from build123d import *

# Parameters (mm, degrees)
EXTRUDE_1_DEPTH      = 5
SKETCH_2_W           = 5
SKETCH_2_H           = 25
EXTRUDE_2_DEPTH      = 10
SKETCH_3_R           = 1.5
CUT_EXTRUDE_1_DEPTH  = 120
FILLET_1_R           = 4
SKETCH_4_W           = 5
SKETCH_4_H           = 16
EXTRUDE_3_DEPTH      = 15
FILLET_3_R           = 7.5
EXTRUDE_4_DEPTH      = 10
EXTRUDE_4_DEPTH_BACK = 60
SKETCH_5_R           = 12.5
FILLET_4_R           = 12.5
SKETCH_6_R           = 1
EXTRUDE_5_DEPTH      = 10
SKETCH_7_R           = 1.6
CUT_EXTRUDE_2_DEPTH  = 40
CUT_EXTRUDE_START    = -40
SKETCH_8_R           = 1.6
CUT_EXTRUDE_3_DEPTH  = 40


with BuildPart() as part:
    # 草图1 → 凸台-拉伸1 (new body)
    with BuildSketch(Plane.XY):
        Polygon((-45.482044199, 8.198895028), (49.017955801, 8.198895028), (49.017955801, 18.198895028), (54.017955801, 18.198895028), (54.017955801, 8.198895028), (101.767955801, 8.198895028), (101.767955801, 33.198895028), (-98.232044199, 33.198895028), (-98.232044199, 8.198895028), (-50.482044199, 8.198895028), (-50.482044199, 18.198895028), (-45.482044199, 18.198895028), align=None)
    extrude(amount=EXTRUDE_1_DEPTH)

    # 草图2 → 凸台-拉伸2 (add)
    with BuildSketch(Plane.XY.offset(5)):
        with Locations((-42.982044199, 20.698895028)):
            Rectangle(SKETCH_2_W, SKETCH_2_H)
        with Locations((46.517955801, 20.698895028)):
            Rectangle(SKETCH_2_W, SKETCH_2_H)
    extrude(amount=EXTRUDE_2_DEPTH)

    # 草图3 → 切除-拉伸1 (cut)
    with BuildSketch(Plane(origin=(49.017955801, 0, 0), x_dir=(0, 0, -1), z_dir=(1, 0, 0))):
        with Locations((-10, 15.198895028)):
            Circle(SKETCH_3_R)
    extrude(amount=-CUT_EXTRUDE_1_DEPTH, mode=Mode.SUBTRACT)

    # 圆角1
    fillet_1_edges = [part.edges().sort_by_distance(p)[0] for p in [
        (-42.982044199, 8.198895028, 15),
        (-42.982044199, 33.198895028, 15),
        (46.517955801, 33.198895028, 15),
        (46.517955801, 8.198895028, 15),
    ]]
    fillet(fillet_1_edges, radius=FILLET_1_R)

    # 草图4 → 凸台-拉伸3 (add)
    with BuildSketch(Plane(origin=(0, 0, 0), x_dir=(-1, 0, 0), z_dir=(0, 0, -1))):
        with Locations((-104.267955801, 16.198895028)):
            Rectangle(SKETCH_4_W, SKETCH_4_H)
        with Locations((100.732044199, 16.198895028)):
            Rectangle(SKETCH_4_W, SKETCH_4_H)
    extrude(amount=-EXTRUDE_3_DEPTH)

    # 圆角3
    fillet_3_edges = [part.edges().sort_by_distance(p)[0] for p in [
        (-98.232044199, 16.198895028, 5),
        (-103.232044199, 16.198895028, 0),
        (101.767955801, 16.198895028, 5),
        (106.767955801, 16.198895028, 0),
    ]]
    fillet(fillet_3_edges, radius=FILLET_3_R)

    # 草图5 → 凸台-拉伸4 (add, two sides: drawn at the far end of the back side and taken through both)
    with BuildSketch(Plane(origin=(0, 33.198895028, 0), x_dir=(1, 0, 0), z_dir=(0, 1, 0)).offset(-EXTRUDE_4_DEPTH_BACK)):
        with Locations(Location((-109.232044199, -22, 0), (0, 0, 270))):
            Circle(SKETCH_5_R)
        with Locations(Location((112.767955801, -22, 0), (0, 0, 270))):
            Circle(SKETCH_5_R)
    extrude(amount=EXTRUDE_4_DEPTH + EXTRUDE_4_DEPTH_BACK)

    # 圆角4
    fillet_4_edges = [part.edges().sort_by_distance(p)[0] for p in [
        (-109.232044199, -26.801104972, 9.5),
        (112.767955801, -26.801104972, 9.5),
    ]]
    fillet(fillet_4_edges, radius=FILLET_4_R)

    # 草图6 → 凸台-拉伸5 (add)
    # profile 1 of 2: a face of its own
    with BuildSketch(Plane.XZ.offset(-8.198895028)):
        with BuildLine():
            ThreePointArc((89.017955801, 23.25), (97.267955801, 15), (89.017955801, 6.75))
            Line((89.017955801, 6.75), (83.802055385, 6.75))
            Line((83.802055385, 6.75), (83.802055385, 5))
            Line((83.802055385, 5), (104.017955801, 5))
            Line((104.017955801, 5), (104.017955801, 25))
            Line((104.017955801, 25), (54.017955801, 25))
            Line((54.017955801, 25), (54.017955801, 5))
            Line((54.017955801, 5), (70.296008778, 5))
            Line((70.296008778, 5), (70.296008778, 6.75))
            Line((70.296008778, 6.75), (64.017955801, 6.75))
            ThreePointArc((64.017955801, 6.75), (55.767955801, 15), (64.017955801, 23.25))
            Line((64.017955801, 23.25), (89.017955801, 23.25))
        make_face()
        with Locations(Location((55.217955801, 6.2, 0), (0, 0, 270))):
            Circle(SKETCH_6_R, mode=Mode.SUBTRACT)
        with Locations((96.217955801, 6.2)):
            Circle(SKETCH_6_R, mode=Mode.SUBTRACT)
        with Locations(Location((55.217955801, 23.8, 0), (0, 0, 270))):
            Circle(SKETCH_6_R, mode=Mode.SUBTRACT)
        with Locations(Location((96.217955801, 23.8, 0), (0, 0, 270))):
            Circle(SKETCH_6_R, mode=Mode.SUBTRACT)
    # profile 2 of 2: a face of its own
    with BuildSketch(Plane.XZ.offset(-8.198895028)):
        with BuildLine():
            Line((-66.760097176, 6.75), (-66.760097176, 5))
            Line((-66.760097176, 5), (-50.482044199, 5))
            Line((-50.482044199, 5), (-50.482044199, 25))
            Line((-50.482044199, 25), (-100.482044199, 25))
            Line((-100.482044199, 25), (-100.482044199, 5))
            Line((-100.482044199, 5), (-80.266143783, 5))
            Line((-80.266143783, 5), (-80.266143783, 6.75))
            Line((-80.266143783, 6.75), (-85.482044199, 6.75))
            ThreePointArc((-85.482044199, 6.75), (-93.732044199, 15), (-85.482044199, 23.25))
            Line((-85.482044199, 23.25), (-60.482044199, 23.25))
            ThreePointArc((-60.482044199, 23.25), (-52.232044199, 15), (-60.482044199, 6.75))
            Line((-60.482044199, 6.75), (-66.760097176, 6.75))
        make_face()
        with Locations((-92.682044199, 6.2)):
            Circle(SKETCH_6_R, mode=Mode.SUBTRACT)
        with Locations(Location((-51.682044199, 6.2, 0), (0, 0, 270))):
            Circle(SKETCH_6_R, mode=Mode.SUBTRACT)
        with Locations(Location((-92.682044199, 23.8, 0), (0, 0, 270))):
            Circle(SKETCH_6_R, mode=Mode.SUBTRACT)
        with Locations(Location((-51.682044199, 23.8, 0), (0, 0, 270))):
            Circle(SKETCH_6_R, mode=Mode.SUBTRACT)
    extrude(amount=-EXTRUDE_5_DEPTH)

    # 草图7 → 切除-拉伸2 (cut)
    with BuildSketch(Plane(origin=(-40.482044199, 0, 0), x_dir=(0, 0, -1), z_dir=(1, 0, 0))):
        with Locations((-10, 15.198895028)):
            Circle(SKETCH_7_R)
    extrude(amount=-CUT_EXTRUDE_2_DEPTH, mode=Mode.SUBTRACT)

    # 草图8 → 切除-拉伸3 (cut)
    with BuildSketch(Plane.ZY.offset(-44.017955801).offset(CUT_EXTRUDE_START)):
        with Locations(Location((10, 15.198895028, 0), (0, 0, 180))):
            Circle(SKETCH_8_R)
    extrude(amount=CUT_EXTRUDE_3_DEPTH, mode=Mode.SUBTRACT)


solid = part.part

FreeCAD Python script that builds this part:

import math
import FreeCAD as App
import Part
import Sketcher

V = App.Vector
Q = App.Units.Quantity


def edges_at(feature, points):
    """Names of the edges that pass closest to the given points."""
    edges = feature.Shape.Edges
    near = lambda p: min(range(len(edges)), key=lambda i: edges[i].distToShape(Part.Vertex(*p))[0])
    return sorted({f"Edge{near(p) + 1}" for p in points})


def add_polygon(sketch, points):
    """Adds a closed chain of lines whose ends are joined by coincident constraints."""
    first, n = sketch.GeometryCount, len(points)
    for a, b in zip(points, points[1:] + points[:1]):
        sketch.addGeometry(Part.LineSegment(App.Vector(*a, 0), App.Vector(*b, 0)), False)
    for i in range(n):
        sketch.addConstraint(Sketcher.Constraint("Coincident", first + i, 2, first + (i + 1) % n, 1))

doc = App.newDocument("Part")
body = doc.addObject("PartDesign::Body", "Body")

sketch1 = doc.addObject("Sketcher::SketchObject", "Sketch")
body.addObject(sketch1)
sketch1.AttachmentSupport = (doc.XY_Plane, [""])
sketch1.MapMode = "FlatFace"
add_polygon(sketch1, [(-45.482044, 8.198895), (49.017956, 8.198895), (49.017956, 18.198895), (54.017956, 18.198895), (54.017956, 8.198895), (101.767956, 8.198895), (101.767956, 33.198895), (-98.232044, 33.198895), (-98.232044, 8.198895), (-50.482044, 8.198895), (-50.482044, 18.198895), (-45.482044, 18.198895)])
sketch1.addConstraint([
    Sketcher.Constraint("Horizontal", 0),
    Sketcher.Constraint("Vertical", 1),
    Sketcher.Constraint("Horizontal", 2),
    Sketcher.Constraint("Vertical", 3),
    Sketcher.Constraint("Horizontal", 4),
    Sketcher.Constraint("Vertical", 5),
    Sketcher.Constraint("Horizontal", 6),
    Sketcher.Constraint("Vertical", 7),
    Sketcher.Constraint("Horizontal", 8),
    Sketcher.Constraint("Vertical", 9),
    Sketcher.Constraint("Horizontal", 10),
    Sketcher.Constraint("Vertical", 11),
    Sketcher.Constraint("Horizontal", 0, 2, 3, 2),
    Sketcher.Constraint("Horizontal", 4, 2, 7, 2),
    Sketcher.Constraint("Horizontal", 2, 2, 9, 2),
    Sketcher.Constraint("Equal", 4, 8),
    Sketcher.Constraint("Equal", 2, 10),
    Sketcher.Constraint("DistanceX", 2, 1, 2, 2, Q("5 mm")),
    Sketcher.Constraint("DistanceX", 6, 2, 6, 1, Q("200 mm")),
    Sketcher.Constraint("DistanceY", 1, 1, 1, 2, Q("10 mm")),
    Sketcher.Constraint("DistanceY", 5, 1, 5, 2, Q("25 mm")),
    Sketcher.Constraint("DistanceX", 0, 1, 0, 2, Q("94.5 mm")),
    Sketcher.Constraint("DistanceX", -1, 1, 0, 2, Q("49.017956 mm")),
    Sketcher.Constraint("DistanceY", -1, 1, 0, 2, Q("8.198895 mm")),
])
pad1 = doc.addObject("PartDesign::Pad", "Pad")
body.addObject(pad1)
pad1.Profile = sketch1
pad1.Length = 5

sketch2 = doc.addObject("Sketcher::SketchObject", "Sketch001")
body.addObject(sketch2)
sketch2.AttachmentSupport = (doc.XY_Plane, [""])
sketch2.MapMode = "FlatFace"
sketch2.AttachmentOffset = App.Placement(V(0, 0, 5), App.Rotation())
add_polygon(sketch2, [(-45.482044, 33.198895), (-45.482044, 8.198895), (-40.482044, 8.198895), (-40.482044, 33.198895)])
add_polygon(sketch2, [(44.017956, 33.198895), (44.017956, 8.198895), (49.017956, 8.198895), (49.017956, 33.198895)])
sketch2.addConstraint([
    Sketcher.Constraint("Vertical", 0),
    Sketcher.Constraint("Horizontal", 1),
    Sketcher.Constraint("Vertical", 2),
    Sketcher.Constraint("Horizontal", 3),
    Sketcher.Constraint("Vertical", 4),
    Sketcher.Constraint("Horizontal", 5),
    Sketcher.Constraint("Vertical", 6),
    Sketcher.Constraint("Horizontal", 7),
    Sketcher.Constraint("Horizontal", 1, 2, 4, 2),
    Sketcher.Constraint("Horizontal", 3, 2, 6, 2),
    Sketcher.Constraint("Equal", 3, 5),
    Sketcher.Constraint("DistanceX", 1, 1, 1, 2, Q("5 mm")),
    Sketcher.Constraint("DistanceY", 0, 2, 0, 1, Q("25 mm")),
    Sketcher.Constraint("DistanceX", 1, 2, 4, 2, Q("84.5 mm")),
    Sketcher.Constraint("DistanceX", 0, 2, -1, 1, Q("45.482044 mm")),
    Sketcher.Constraint("DistanceY", -1, 1, 0, 2, Q("8.198895 mm")),
])
pad2 = doc.addObject("PartDesign::Pad", "Pad001")
body.addObject(pad2)
pad2.Profile = sketch2
pad2.Length = 10

sketch3 = doc.addObject("Sketcher::SketchObject", "Sketch002")
body.addObject(sketch3)
sketch3.AttachmentSupport = (doc.YZ_Plane, [""])
sketch3.MapMode = "FlatFace"
sketch3.AttachmentOffset = App.Placement(V(0, 0, 49.017956), App.Rotation())
sketch3.addGeometry(Part.Circle(V(15.198895, 10, 0), V(0, 0, 1), 1.5), False)
sketch3.addConstraint([
    Sketcher.Constraint("Diameter", 0, Q("3 mm")),
    Sketcher.Constraint("DistanceY", -1, 1, 0, 3, Q("10 mm")),
    Sketcher.Constraint("DistanceX", -1, 1, 0, 3, Q("15.198895 mm")),
])
pocket1 = doc.addObject("PartDesign::Pocket", "Pocket")
body.addObject(pocket1)
pocket1.Profile = sketch3
pocket1.Length = 120
doc.recompute()

fillet = doc.addObject("PartDesign::Fillet", "Fillet")
body.addObject(fillet)
fillet.Base = (pocket1, edges_at(pocket1, [
    (-42.982, 8.199, 15),
    (-42.982, 33.199, 15),
    (46.518, 33.199, 15),
    (46.518, 8.199, 15),
]))
fillet.Radius = 4

sketch4 = doc.addObject("Sketcher::SketchObject", "Sketch003")
body.addObject(sketch4)
sketch4.AttachmentSupport = (doc.XY_Plane, [""])
sketch4.MapMode = "FlatFace"
add_polygon(sketch4, [(106.767956, 24.198895), (106.767956, 8.198895), (101.767956, 8.198895), (101.767956, 24.198895)])
add_polygon(sketch4, [(-98.232044, 24.198895), (-98.232044, 8.198895), (-103.232044, 8.198895), (-103.232044, 24.198895)])
sketch4.addConstraint([
    Sketcher.Constraint("Vertical", 0),
    Sketcher.Constraint("Horizontal", 1),
    Sketcher.Constraint("Vertical", 2),
    Sketcher.Constraint("Horizontal", 3),
    Sketcher.Constraint("Vertical", 4),
    Sketcher.Constraint("Horizontal", 5),
    Sketcher.Constraint("Vertical", 6),
    Sketcher.Constraint("Horizontal", 7),
    Sketcher.Constraint("Horizontal", 1, 2, 4, 2),
    Sketcher.Constraint("Horizontal", 3, 2, 6, 2),
    Sketcher.Constraint("Equal", 3, 5),
    Sketcher.Constraint("DistanceX", 1, 2, 1, 1, Q("5 mm")),
    Sketcher.Constraint("DistanceY", 0, 2, 0, 1, Q("16 mm")),
    Sketcher.Constraint("DistanceX", 4, 2, 1, 2, Q("200 mm")),
    Sketcher.Constraint("DistanceX", -1, 1, 0, 2, Q("106.767956 mm")),
    Sketcher.Constraint("DistanceY", -1, 1, 0, 2, Q("8.198895 mm")),
])
pad3 = doc.addObject("PartDesign::Pad", "Pad002")
body.addObject(pad3)
pad3.Profile = sketch4
pad3.Length = 15
doc.recompute()

fillet2 = doc.addObject("PartDesign::Fillet", "Fillet001")
body.addObject(fillet2)
fillet2.Base = (pad3, edges_at(pad3, [
    (-98.232, 16.199, 5),
    (-103.232, 16.199, 0),
    (101.768, 16.199, 5),
    (106.768, 16.199, 0),
]))
fillet2.Radius = 7.5

sketch5 = doc.addObject("Sketcher::SketchObject", "Sketch004")
body.addObject(sketch5)
sketch5.AttachmentSupport = (doc.XZ_Plane, [""])
sketch5.MapMode = "FlatFace"
sketch5.AttachmentOffset = App.Placement(V(0, 0, -33.198895), App.Rotation())
sketch5.addGeometry([
    Part.Circle(V(-109.232044, 22, 0), V(0, 0, 1), 12.5),
    Part.Circle(V(112.767956, 22, 0), V(0, 0, 1), 12.5),
], False)
sketch5.addConstraint([
    Sketcher.Constraint("Equal", 0, 1),
    Sketcher.Constraint("Horizontal", 0, 3, 1, 3),
    Sketcher.Constraint("Diameter", 0, Q("25 mm")),
    Sketcher.Constraint("DistanceY", -1, 1, 0, 3, Q("22 mm")),
    Sketcher.Constraint("DistanceX", 0, 3, 1, 3, Q("222 mm")),
    Sketcher.Constraint("DistanceX", 0, 3, -1, 1, Q("109.232044 mm")),
])
pad4 = doc.addObject("PartDesign::Pad", "Pad003")
body.addObject(pad4)
pad4.Profile = sketch5
pad4.Type = "TwoLengths"
pad4.Length = 10
pad4.Length2 = 60
pad4.Reversed = True
doc.recompute()

fillet3 = doc.addObject("PartDesign::Fillet", "Fillet002")
body.addObject(fillet3)
fillet3.Base = (pad4, edges_at(pad4, [(-109.232, -26.801, 9.5), (112.768, -26.801, 9.5)]))
fillet3.Radius = 12.5

sketch6 = doc.addObject("Sketcher::SketchObject", "Sketch005")
body.addObject(sketch6)
sketch6.AttachmentSupport = (doc.XZ_Plane, [""])
sketch6.MapMode = "FlatFace"
sketch6.AttachmentOffset = App.Placement(V(0, 0, -8.198895), App.Rotation())
sketch6.addGeometry([
    Part.ArcOfCircle(Part.Circle(V(89.017956, 15, 0), V(0, 0, 1), 8.25), math.radians(-90), math.radians(90)),
    Part.LineSegment(V(89.017956, 6.75, 0), V(83.802055, 6.75, 0)),
    Part.LineSegment(V(83.802055, 6.75, 0), V(83.802055, 5, 0)),
    Part.LineSegment(V(83.802055, 5, 0), V(104.017956, 5, 0)),
    Part.LineSegment(V(104.017956, 5, 0), V(104.017956, 25, 0)),
    Part.LineSegment(V(104.017956, 25, 0), V(54.017956, 25, 0)),
    Part.LineSegment(V(54.017956, 25, 0), V(54.017956, 5, 0)),
    Part.LineSegment(V(54.017956, 5, 0), V(70.296009, 5, 0)),
    Part.LineSegment(V(70.296009, 5, 0), V(70.296009, 6.75, 0)),
    Part.LineSegment(V(70.296009, 6.75, 0), V(64.017956, 6.75, 0)),
    Part.ArcOfCircle(Part.Circle(V(64.017956, 15, 0), V(0, 0, 1), 8.25), math.radians(90), math.radians(270)),
    Part.LineSegment(V(64.017956, 23.25, 0), V(89.017956, 23.25, 0)),
    Part.Circle(V(55.217956, 6.2, 0), V(0, 0, 1), 1),
    Part.Circle(V(96.217956, 6.2, 0), V(0, 0, 1), 1),
    Part.Circle(V(55.217956, 23.8, 0), V(0, 0, 1), 1),
    Part.Circle(V(96.217956, 23.8, 0), V(0, 0, 1), 1),
    Part.LineSegment(V(-66.760097, 6.75, 0), V(-66.760097, 5, 0)),
    Part.LineSegment(V(-66.760097, 5, 0), V(-50.482044, 5, 0)),
    Part.LineSegment(V(-50.482044, 5, 0), V(-50.482044, 25, 0)),
    Part.LineSegment(V(-50.482044, 25, 0), V(-100.482044, 25, 0)),
    Part.LineSegment(V(-100.482044, 25, 0), V(-100.482044, 5, 0)),
    Part.LineSegment(V(-100.482044, 5, 0), V(-80.266144, 5, 0)),
    Part.LineSegment(V(-80.266144, 5, 0), V(-80.266144, 6.75, 0)),
    Part.LineSegment(V(-80.266144, 6.75, 0), V(-85.482044, 6.75, 0)),
    Part.ArcOfCircle(Part.Circle(V(-85.482044, 15, 0), V(0, 0, 1), 8.25), math.radians(90), math.radians(270)),
    Part.LineSegment(V(-85.482044, 23.25, 0), V(-60.482044, 23.25, 0)),
    Part.ArcOfCircle(Part.Circle(V(-60.482044, 15, 0), V(0, 0, 1), 8.25), math.radians(-90), math.radians(90)),
    Part.LineSegment(V(-60.482044, 6.75, 0), V(-66.760097, 6.75, 0)),
    Part.Circle(V(-92.682044, 6.2, 0), V(0, 0, 1), 1),
    Part.Circle(V(-51.682044, 6.2, 0), V(0, 0, 1), 1),
    Part.Circle(V(-92.682044, 23.8, 0), V(0, 0, 1), 1),
    Part.Circle(V(-51.682044, 23.8, 0), V(0, 0, 1), 1),
], False)
sketch6.addConstraint([
    Sketcher.Constraint("Tangent", 0, 1, 1, 1),
    Sketcher.Constraint("Coincident", 1, 2, 2, 1),
    Sketcher.Constraint("Coincident", 2, 2, 3, 1),
    Sketcher.Constraint("Coincident", 3, 2, 4, 1),
    Sketcher.Constraint("Coincident", 4, 2, 5, 1),
    Sketcher.Constraint("Coincident", 5, 2, 6, 1),
    Sketcher.Constraint("Coincident", 6, 2, 7, 1),
    Sketcher.Constraint("Coincident", 7, 2, 8, 1),
    Sketcher.Constraint("Coincident", 8, 2, 9, 1),
    Sketcher.Constraint("Tangent", 9, 2, 10, 2),
    Sketcher.Constraint("Tangent", 10, 1, 11, 1),
    Sketcher.Constraint("Tangent", 11, 2, 0, 2),
    Sketcher.Constraint("Coincident", 16, 2, 17, 1),
    Sketcher.Constraint("Coincident", 17, 2, 18, 1),
    Sketcher.Constraint("Coincident", 18, 2, 19, 1),
    Sketcher.Constraint("Coincident", 19, 2, 20, 1),
    Sketcher.Constraint("Coincident", 20, 2, 21, 1),
    Sketcher.Constraint("Coincident", 21, 2, 22, 1),
    Sketcher.Constraint("Coincident", 22, 2, 23, 1),
    Sketcher.Constraint("Tangent", 23, 2, 24, 2),
    Sketcher.Constraint("Tangent", 24, 1, 25, 1),
    Sketcher.Constraint("Tangent", 25, 2, 26, 2),
    Sketcher.Constraint("Tangent", 26, 1, 27, 1),
    Sketcher.Constraint("Coincident", 27, 2, 16, 1),
    Sketcher.Constraint("Horizontal", 1),
    Sketcher.Constraint("Vertical", 2),
    Sketcher.Constraint("Horizontal", 3),
    Sketcher.Constraint("Vertical", 4),
    Sketcher.Constraint("Horizontal", 5),
    Sketcher.Constraint("Vertical", 6),
    Sketcher.Constraint("Horizontal", 7),
    Sketcher.Constraint("Vertical", 8),
    Sketcher.Constraint("Horizontal", 9),
    Sketcher.Constraint("Horizontal", 11),
    Sketcher.Constraint("Vertical", 16),
    Sketcher.Constraint("Horizontal", 17),
    Sketcher.Constraint("Vertical", 18),
    Sketcher.Constraint("Horizontal", 19),
    Sketcher.Constraint("Vertical", 20),
    Sketcher.Constraint("Horizontal", 21),
    Sketcher.Constraint("Vertical", 22),
    Sketcher.Constraint("Horizontal", 23),
    Sketcher.Constraint("Horizontal", 25),
    Sketcher.Constraint("Horizontal", 27),
    Sketcher.Constraint("Equal", 0, 10),
    Sketcher.Constraint("Equal", 12, 13),
    Sketcher.Constraint("Equal", 13, 14),
    Sketcher.Constraint("Equal", 14, 15),
    Sketcher.Constraint("Equal", 10, 24),
    Sketcher.Constraint("Equal", 24, 26),
    Sketcher.Constraint("Equal", 15, 28),
    Sketcher.Constraint("Equal", 28, 29),
    Sketcher.Constraint("Equal", 29, 30),
    Sketcher.Constraint("Equal", 30, 31),
    Sketcher.Constraint("Horizontal", 12, 3, 13, 3),
    Sketcher.Constraint("Horizontal", 14, 3, 15, 3),
    Sketcher.Constraint("Horizontal", 10, 3, 24, 3),
    Sketcher.Constraint("Horizontal", 13, 3, 28, 3),
    Sketcher.Constraint("Horizontal", 28, 3, 29, 3),
    Sketcher.Constraint("Horizontal", 15, 3, 30, 3),
    Sketcher.Constraint("Horizontal", 30, 3, 31, 3),
    Sketcher.Constraint("Horizontal", 3, 2, 6, 2),
    Sketcher.Constraint("Horizontal", 7, 2, 16, 2),
    Sketcher.Constraint("Horizontal", 5, 2, 18, 2),
    Sketcher.Constraint("Horizontal", 17, 2, 20, 2),
    Sketcher.Constraint("Vertical", 12, 3, 14, 3),
    Sketcher.Constraint("Vertical", 13, 3, 15, 3),
    Sketcher.Constraint("Vertical", 28, 3, 30, 3),
    Sketcher.Constraint("Vertical", 29, 3, 31, 3),
    Sketcher.Constraint("Equal", 7, 17),
    Sketcher.Constraint("Equal", 5, 19),
    Sketcher.Constraint("Equal", 3, 21),
    Sketcher.Constraint("Equal", 1, 23),
    Sketcher.Constraint("Equal", 11, 25),
    Sketcher.Constraint("Diameter", 12, Q("2 mm")),
    Sketcher.Constraint("DistanceX", 5, 2, 5, 1, Q("50 mm")),
    Sketcher.Constraint("DistanceX", 11, 1, 11, 2, Q("25 mm")),
    Sketcher.Constraint("DistanceY", 4, 1, 4, 2, Q("20 mm")),
    Sketcher.Constraint("Radius", 0, Q("8.25 mm")),
    Sketcher.Constraint("DistanceY", -1, 1, 0, 3, Q("15 mm")),
    Sketcher.Constraint("DistanceY", -1, 1, 2, 2, Q("5 mm")),
    Sketcher.Constraint("DistanceX", 12, 3, 13, 3, Q("41 mm")),
    Sketcher.Constraint("DistanceX", 28, 3, 29, 3, Q("41 mm")),
    Sketcher.Constraint("DistanceX", 0, 1, 3, 2, Q("15 mm")),
    Sketcher.Constraint("DistanceY", -1, 1, 12, 3, Q("6.2 mm")),
    Sketcher.Constraint("DistanceY", -1, 1, 14, 3, Q("23.8 mm")),
    Sketcher.Constraint("DistanceX", 12, 3, 10, 3, Q("8.8 mm")),
    Sketcher.Constraint("DistanceX", 24, 3, 12, 3, Q("140.7 mm")),
    Sketcher.Constraint("DistanceX", 28, 3, 24, 3, Q("7.2 mm")),
    Sketcher.Constraint("DistanceX", 1, 2, 1, 1, Q("5.2159 mm")),
    Sketcher.Constraint("DistanceX", 7, 1, 7, 2, Q("16.278053 mm")),
    Sketcher.Constraint("DistanceX", -1, 1, 7, 2, Q("70.296009 mm")),
])
pad5 = doc.addObject("PartDesign::Pad", "Pad004")
body.addObject(pad5)
pad5.Profile = sketch6
pad5.Length = 10
pad5.Reversed = True

sketch7 = doc.addObject("Sketcher::SketchObject", "Sketch006")
body.addObject(sketch7)
sketch7.AttachmentSupport = (doc.YZ_Plane, [""])
sketch7.MapMode = "FlatFace"
sketch7.AttachmentOffset = App.Placement(V(0, 0, -40.482044), App.Rotation())
sketch7.addGeometry(Part.Circle(V(15.198895, 10, 0), V(0, 0, 1), 1.6), False)
sketch7.addConstraint([
    Sketcher.Constraint("Diameter", 0, Q("3.2 mm")),
    Sketcher.Constraint("DistanceY", -1, 1, 0, 3, Q("10 mm")),
    Sketcher.Constraint("DistanceX", -1, 1, 0, 3, Q("15.198895 mm")),
])
pocket2 = doc.addObject("PartDesign::Pocket", "Pocket001")
body.addObject(pocket2)
pocket2.Profile = sketch7
pocket2.Length = 40

sketch8 = doc.addObject("Sketcher::SketchObject", "Sketch007")
body.addObject(sketch8)
sketch8.AttachmentSupport = (doc.YZ_Plane, [""])
sketch8.MapMode = "FlatFace"
sketch8.AttachmentOffset = App.Placement(V(0, 0, 84.017956), App.Rotation())
sketch8.addGeometry(Part.Circle(V(15.198895, 10, 0), V(0, 0, 1), 1.6), False)
sketch8.addConstraint([
    Sketcher.Constraint("Diameter", 0, Q("3.2 mm")),
    Sketcher.Constraint("DistanceY", -1, 1, 0, 3, Q("10 mm")),
    Sketcher.Constraint("DistanceX", -1, 1, 0, 3, Q("15.198895 mm")),
])
pocket3 = doc.addObject("PartDesign::Pocket", "Pocket002")
body.addObject(pocket3)
pocket3.Profile = sketch8
pocket3.Length = 40

doc.recompute()
